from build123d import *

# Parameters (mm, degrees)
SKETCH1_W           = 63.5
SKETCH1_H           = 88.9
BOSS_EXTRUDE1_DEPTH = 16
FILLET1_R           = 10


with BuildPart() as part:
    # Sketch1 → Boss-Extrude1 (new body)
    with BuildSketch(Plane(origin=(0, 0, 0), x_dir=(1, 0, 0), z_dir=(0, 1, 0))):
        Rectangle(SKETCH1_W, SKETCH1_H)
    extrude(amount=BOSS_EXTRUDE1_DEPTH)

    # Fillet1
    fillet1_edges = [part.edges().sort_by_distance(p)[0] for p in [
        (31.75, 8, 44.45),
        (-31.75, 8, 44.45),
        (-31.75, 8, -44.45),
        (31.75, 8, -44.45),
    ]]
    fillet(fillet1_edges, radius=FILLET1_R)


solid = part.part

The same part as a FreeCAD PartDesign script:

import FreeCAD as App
import Part
import Sketcher
Q = App.Units.Quantity


def edges_at(feature, points):
    """Names of the edges that pass closest to the given points."""
    edges = feature.Shape.Edges
    near = lambda p: min(range(len(edges)), key=lambda i: edges[i].distToShape(Part.Vertex(*p))[0])
    return sorted({f"Edge{near(p) + 1}" for p in points})


def add_polygon(sketch, points):
    """Adds a closed chain of lines whose ends are joined by coincident constraints."""
    first, n = sketch.GeometryCount, len(points)
    for a, b in zip(points, points[1:] + points[:1]):
        sketch.addGeometry(Part.LineSegment(App.Vector(*a, 0), App.Vector(*b, 0)), False)
    for i in range(n):
        sketch.addConstraint(Sketcher.Constraint("Coincident", first + i, 2, first + (i + 1) % n, 1))

doc = App.newDocument("Part")
body = doc.addObject("PartDesign::Body", "Body")

sketch1 = body.newObject("Sketcher::SketchObject", "Sketch")
sketch1.AttachmentSupport = (doc.getObject("XZ_Plane"), [""])
sketch1.MapMode = "FlatFace"
add_polygon(sketch1, [(-32, -44), (-32, 44), (32, 44), (32, -44)])
sketch1.addConstraint([
    Sketcher.Constraint("Vertical", 0),
    Sketcher.Constraint("Horizontal", 1),
    Sketcher.Constraint("Vertical", 2),
    Sketcher.Constraint("Horizontal", 3),
    Sketcher.Constraint("Symmetric", 0, 2, 2, 2, -1, 1),
    Sketcher.Constraint("DistanceX", 1, 1, 1, 2, Q("63.5 mm")),
    Sketcher.Constraint("DistanceY", 0, 1, 0, 2, Q("88.9 mm")),
])
pad1 = body.newObject("PartDesign::Pad", "Pad")
pad1.Profile = sketch1
pad1.Length = 16
pad1.Reversed = True
doc.recompute()

fillet = body.newObject("PartDesign::Fillet", "Fillet")
fillet.Base = (pad1, edges_at(pad1, [
    (31.75, 8, 44.45),
    (-31.75, 8, 44.45),
    (-31.75, 8, -44.45),
    (31.75, 8, -44.45),
]))
fillet.Radius = 10

doc.recompute()
